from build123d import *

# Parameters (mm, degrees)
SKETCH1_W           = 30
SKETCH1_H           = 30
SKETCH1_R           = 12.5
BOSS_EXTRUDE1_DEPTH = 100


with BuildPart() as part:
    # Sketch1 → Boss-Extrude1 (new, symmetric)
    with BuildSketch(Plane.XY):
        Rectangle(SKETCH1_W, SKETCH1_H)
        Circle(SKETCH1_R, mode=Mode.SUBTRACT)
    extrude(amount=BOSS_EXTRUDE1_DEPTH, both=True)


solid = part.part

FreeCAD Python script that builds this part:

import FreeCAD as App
import Part
import Sketcher
from FreeCAD import Vector


def add_polygon(sketch, points):
    """Adds a closed chain of lines whose ends are joined by coincident constraints."""
    first, n = sketch.GeometryCount, len(points)
    for a, b in zip(points, points[1:] + points[:1]):
        sketch.addGeometry(Part.LineSegment(App.Vector(*a, 0), App.Vector(*b, 0)), False)
    for i in range(n):
        sketch.addConstraint(Sketcher.Constraint("Coincident", first + i, 2, first + (i + 1) % n, 1))

doc = App.newDocument("Part")
body = doc.addObject("PartDesign::Body", "Body")

sketch1 = body.newObject("Sketcher::SketchObject", "Sketch")
sketch1.AttachmentSupport = (doc.getObject("XY_Plane"), [""])
sketch1.MapMode = "FlatFace"
add_polygon(sketch1, [(-15, 15), (-15, -15), (15, -15), (15, 15)])
sketch1.addGeometry(Part.Circle(Vector(0, 0, 0), Vector(0, 0, 1), 12), False)
sketch1.addConstraint(Sketcher.Constraint("Vertical", 0))
sketch1.addConstraint(Sketcher.Constraint("Horizontal", 1))
sketch1.addConstraint(Sketcher.Constraint("Vertical", 2))
sketch1.addConstraint(Sketcher.Constraint("Horizontal", 3))
sketch1.addConstraint(Sketcher.Constraint("Coincident", 4, 3, -1, 1))
sketch1.addConstraint(Sketcher.Constraint("Symmetric", 0, 2, 2, 2, -1, 1))
sketch1.addConstraint(Sketcher.Constraint("Equal", 3, 0))
sketch1.addConstraint(Sketcher.Constraint("Diameter", 4, 25.0))
sketch1.addConstraint(Sketcher.Constraint("DistanceX", 1, 1, 1, 2, 30.0))
pad1 = body.newObject("PartDesign::Pad", "Pad")
pad1.Profile = sketch1
pad1.Length = 200
pad1.Midplane = True

doc.recompute()
